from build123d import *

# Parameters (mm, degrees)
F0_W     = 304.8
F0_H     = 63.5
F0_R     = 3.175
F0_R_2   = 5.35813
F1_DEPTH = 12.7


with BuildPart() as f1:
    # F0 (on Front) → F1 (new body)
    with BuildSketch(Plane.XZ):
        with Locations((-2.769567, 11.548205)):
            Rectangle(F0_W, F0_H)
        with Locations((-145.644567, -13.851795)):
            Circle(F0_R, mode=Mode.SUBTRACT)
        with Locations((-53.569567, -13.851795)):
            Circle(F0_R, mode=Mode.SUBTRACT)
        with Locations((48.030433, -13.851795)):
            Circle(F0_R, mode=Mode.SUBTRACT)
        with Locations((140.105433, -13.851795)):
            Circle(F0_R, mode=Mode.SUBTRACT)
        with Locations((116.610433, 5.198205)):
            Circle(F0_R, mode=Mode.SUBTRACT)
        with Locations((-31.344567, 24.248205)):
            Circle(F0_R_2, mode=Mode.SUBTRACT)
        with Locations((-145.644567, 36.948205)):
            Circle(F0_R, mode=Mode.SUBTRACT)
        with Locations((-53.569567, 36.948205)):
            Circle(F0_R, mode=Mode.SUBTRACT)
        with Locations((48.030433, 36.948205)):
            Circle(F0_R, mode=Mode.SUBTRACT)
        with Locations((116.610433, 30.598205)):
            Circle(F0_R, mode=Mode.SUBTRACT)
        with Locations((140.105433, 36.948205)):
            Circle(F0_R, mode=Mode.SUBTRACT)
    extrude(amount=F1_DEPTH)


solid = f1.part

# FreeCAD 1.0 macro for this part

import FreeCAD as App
import Part
import Sketcher
from FreeCAD import Vector
Q = App.Units.Quantity


def add_polygon(sketch, points):
    """Adds a closed chain of lines whose ends are joined by coincident constraints."""
    first, n = sketch.GeometryCount, len(points)
    for a, b in zip(points, points[1:] + points[:1]):
        sketch.addGeometry(Part.LineSegment(App.Vector(*a, 0), App.Vector(*b, 0)), False)
    for i in range(n):
        sketch.addConstraint(Sketcher.Constraint("Coincident", first + i, 2, first + (i + 1) % n, 1))

doc = App.newDocument("Part")
body = doc.addObject("PartDesign::Body", "Body")

# Sketch on XZ plane
sketch1 = body.newObject("Sketcher::SketchObject", "Sketch")
sketch1.AttachmentSupport = (doc.getObject("XZ_Plane"), [""])
sketch1.MapMode = "FlatFace"
add_polygon(sketch1, [(-155.2, 43.3), (-155.2, -20.2), (149.6, -20.2), (149.6, 43.3)])  # lines 0-3
sketch1.addGeometry(Part.Circle(Vector(-145.6, -13.9, 0), Vector(0, 0, 1), 3.2), False)  # 4
sketch1.addGeometry(Part.Circle(Vector(-53.6, -13.9, 0), Vector(0, 0, 1), 3.2), False)  # 5
sketch1.addGeometry(Part.Circle(Vector(48, -13.9, 0), Vector(0, 0, 1), 3.2), False)  # 6
sketch1.addGeometry(Part.Circle(Vector(140.1, -13.9, 0), Vector(0, 0, 1), 3.2), False)  # 7
sketch1.addGeometry(Part.Circle(Vector(116.6, 5.2, 0), Vector(0, 0, 1), 3.2), False)  # 8
sketch1.addGeometry(Part.Circle(Vector(-31.3, 24.2, 0), Vector(0, 0, 1), 5.4), False)  # 9
sketch1.addGeometry(Part.Circle(Vector(-145.6, 36.9, 0), Vector(0, 0, 1), 3.2), False)  # 10
sketch1.addGeometry(Part.Circle(Vector(-53.6, 36.9, 0), Vector(0, 0, 1), 3.2), False)  # 11
sketch1.addGeometry(Part.Circle(Vector(48, 36.9, 0), Vector(0, 0, 1), 3.2), False)  # 12
sketch1.addGeometry(Part.Circle(Vector(116.6, 30.6, 0), Vector(0, 0, 1), 3.2), False)  # 13
sketch1.addGeometry(Part.Circle(Vector(140.1, 36.9, 0), Vector(0, 0, 1), 3.2), False)  # 14
sketch1.addConstraint(Sketcher.Constraint("Vertical", 0))
sketch1.addConstraint(Sketcher.Constraint("Horizontal", 1))
sketch1.addConstraint(Sketcher.Constraint("Vertical", 2))
sketch1.addConstraint(Sketcher.Constraint("Horizontal", 3))
sketch1.addConstraint(Sketcher.Constraint("Equal", 4, 5))
sketch1.addConstraint(Sketcher.Constraint("Equal", 5, 6))
sketch1.addConstraint(Sketcher.Constraint("Equal", 6, 7))
sketch1.addConstraint(Sketcher.Constraint("Equal", 7, 8))
sketch1.addConstraint(Sketcher.Constraint("Equal", 8, 10))
sketch1.addConstraint(Sketcher.Constraint("Equal", 10, 11))
sketch1.addConstraint(Sketcher.Constraint("Equal", 11, 12))
sketch1.addConstraint(Sketcher.Constraint("Equal", 12, 13))
sketch1.addConstraint(Sketcher.Constraint("Equal", 13, 14))
sketch1.addConstraint(Sketcher.Constraint("Horizontal", 4, 3, 5, 3))
sketch1.addConstraint(Sketcher.Constraint("Horizontal", 5, 3, 6, 3))
sketch1.addConstraint(Sketcher.Constraint("Horizontal", 6, 3, 7, 3))
sketch1.addConstraint(Sketcher.Constraint("Horizontal", 10, 3, 11, 3))
sketch1.addConstraint(Sketcher.Constraint("Horizontal", 11, 3, 12, 3))
sketch1.addConstraint(Sketcher.Constraint("Horizontal", 12, 3, 14, 3))
sketch1.addConstraint(Sketcher.Constraint("Vertical", 4, 3, 10, 3))
sketch1.addConstraint(Sketcher.Constraint("Vertical", 5, 3, 11, 3))
sketch1.addConstraint(Sketcher.Constraint("Vertical", 6, 3, 12, 3))
sketch1.addConstraint(Sketcher.Constraint("Vertical", 8, 3, 13, 3))
sketch1.addConstraint(Sketcher.Constraint("Vertical", 7, 3, 14, 3))
sketch1.addConstraint(Sketcher.Constraint("Diameter", 4, Q("0.25 in")))
sketch1.addConstraint(Sketcher.Constraint("DistanceX", 1, 1, 1, 2, Q("12 in")))
sketch1.addConstraint(Sketcher.Constraint("DistanceY", 0, 2, 0, 1, Q("2.5 in")))
sketch1.addConstraint(Sketcher.Constraint("DistanceX", 5, 3, 6, 3, Q("4 in")))
sketch1.addConstraint(Sketcher.Constraint("DistanceY", 4, 3, 10, 3, Q("2 in")))
sketch1.addConstraint(Sketcher.Constraint("DistanceY", 8, 3, 13, 3, Q("1 in")))
sketch1.addConstraint(Sketcher.Constraint("DistanceX", 0, 2, 5, 3, Q("4 in")))
sketch1.addConstraint(Sketcher.Constraint("DistanceY", 1, 2, 8, 3, Q("1 in")))
sketch1.addConstraint(Sketcher.Constraint("Diameter", 9, Q("0.4219 in")))
sketch1.addConstraint(Sketcher.Constraint("DistanceX", 6, 3, 8, 3, Q("2.7 in")))
sketch1.addConstraint(Sketcher.Constraint("DistanceY", 5, 3, 9, 3, Q("1.5 in")))
sketch1.addConstraint(Sketcher.Constraint("DistanceX", 4, 3, 9, 3, Q("4.5 in")))
sketch1.addConstraint(Sketcher.Constraint("DistanceX", 4, 3, 7, 3, Q("11.25 in")))
sketch1.addConstraint(Sketcher.Constraint("DistanceY", 7, 3, 8, 3, Q("0.75 in")))
sketch1.addConstraint(Sketcher.Constraint("DistanceX", 4, 3, 5, 3, Q("3.625 in")))
sketch1.addConstraint(Sketcher.Constraint("DistanceX", 4, 3, -1, 1, Q("145.644567 mm")))
sketch1.addConstraint(Sketcher.Constraint("DistanceY", 4, 3, -1, 1, Q("13.851795 mm")))
pad1 = body.newObject("PartDesign::Pad", "Pad")
pad1.Profile = sketch1
pad1.Length = Q("0.5 in")

doc.recompute()
